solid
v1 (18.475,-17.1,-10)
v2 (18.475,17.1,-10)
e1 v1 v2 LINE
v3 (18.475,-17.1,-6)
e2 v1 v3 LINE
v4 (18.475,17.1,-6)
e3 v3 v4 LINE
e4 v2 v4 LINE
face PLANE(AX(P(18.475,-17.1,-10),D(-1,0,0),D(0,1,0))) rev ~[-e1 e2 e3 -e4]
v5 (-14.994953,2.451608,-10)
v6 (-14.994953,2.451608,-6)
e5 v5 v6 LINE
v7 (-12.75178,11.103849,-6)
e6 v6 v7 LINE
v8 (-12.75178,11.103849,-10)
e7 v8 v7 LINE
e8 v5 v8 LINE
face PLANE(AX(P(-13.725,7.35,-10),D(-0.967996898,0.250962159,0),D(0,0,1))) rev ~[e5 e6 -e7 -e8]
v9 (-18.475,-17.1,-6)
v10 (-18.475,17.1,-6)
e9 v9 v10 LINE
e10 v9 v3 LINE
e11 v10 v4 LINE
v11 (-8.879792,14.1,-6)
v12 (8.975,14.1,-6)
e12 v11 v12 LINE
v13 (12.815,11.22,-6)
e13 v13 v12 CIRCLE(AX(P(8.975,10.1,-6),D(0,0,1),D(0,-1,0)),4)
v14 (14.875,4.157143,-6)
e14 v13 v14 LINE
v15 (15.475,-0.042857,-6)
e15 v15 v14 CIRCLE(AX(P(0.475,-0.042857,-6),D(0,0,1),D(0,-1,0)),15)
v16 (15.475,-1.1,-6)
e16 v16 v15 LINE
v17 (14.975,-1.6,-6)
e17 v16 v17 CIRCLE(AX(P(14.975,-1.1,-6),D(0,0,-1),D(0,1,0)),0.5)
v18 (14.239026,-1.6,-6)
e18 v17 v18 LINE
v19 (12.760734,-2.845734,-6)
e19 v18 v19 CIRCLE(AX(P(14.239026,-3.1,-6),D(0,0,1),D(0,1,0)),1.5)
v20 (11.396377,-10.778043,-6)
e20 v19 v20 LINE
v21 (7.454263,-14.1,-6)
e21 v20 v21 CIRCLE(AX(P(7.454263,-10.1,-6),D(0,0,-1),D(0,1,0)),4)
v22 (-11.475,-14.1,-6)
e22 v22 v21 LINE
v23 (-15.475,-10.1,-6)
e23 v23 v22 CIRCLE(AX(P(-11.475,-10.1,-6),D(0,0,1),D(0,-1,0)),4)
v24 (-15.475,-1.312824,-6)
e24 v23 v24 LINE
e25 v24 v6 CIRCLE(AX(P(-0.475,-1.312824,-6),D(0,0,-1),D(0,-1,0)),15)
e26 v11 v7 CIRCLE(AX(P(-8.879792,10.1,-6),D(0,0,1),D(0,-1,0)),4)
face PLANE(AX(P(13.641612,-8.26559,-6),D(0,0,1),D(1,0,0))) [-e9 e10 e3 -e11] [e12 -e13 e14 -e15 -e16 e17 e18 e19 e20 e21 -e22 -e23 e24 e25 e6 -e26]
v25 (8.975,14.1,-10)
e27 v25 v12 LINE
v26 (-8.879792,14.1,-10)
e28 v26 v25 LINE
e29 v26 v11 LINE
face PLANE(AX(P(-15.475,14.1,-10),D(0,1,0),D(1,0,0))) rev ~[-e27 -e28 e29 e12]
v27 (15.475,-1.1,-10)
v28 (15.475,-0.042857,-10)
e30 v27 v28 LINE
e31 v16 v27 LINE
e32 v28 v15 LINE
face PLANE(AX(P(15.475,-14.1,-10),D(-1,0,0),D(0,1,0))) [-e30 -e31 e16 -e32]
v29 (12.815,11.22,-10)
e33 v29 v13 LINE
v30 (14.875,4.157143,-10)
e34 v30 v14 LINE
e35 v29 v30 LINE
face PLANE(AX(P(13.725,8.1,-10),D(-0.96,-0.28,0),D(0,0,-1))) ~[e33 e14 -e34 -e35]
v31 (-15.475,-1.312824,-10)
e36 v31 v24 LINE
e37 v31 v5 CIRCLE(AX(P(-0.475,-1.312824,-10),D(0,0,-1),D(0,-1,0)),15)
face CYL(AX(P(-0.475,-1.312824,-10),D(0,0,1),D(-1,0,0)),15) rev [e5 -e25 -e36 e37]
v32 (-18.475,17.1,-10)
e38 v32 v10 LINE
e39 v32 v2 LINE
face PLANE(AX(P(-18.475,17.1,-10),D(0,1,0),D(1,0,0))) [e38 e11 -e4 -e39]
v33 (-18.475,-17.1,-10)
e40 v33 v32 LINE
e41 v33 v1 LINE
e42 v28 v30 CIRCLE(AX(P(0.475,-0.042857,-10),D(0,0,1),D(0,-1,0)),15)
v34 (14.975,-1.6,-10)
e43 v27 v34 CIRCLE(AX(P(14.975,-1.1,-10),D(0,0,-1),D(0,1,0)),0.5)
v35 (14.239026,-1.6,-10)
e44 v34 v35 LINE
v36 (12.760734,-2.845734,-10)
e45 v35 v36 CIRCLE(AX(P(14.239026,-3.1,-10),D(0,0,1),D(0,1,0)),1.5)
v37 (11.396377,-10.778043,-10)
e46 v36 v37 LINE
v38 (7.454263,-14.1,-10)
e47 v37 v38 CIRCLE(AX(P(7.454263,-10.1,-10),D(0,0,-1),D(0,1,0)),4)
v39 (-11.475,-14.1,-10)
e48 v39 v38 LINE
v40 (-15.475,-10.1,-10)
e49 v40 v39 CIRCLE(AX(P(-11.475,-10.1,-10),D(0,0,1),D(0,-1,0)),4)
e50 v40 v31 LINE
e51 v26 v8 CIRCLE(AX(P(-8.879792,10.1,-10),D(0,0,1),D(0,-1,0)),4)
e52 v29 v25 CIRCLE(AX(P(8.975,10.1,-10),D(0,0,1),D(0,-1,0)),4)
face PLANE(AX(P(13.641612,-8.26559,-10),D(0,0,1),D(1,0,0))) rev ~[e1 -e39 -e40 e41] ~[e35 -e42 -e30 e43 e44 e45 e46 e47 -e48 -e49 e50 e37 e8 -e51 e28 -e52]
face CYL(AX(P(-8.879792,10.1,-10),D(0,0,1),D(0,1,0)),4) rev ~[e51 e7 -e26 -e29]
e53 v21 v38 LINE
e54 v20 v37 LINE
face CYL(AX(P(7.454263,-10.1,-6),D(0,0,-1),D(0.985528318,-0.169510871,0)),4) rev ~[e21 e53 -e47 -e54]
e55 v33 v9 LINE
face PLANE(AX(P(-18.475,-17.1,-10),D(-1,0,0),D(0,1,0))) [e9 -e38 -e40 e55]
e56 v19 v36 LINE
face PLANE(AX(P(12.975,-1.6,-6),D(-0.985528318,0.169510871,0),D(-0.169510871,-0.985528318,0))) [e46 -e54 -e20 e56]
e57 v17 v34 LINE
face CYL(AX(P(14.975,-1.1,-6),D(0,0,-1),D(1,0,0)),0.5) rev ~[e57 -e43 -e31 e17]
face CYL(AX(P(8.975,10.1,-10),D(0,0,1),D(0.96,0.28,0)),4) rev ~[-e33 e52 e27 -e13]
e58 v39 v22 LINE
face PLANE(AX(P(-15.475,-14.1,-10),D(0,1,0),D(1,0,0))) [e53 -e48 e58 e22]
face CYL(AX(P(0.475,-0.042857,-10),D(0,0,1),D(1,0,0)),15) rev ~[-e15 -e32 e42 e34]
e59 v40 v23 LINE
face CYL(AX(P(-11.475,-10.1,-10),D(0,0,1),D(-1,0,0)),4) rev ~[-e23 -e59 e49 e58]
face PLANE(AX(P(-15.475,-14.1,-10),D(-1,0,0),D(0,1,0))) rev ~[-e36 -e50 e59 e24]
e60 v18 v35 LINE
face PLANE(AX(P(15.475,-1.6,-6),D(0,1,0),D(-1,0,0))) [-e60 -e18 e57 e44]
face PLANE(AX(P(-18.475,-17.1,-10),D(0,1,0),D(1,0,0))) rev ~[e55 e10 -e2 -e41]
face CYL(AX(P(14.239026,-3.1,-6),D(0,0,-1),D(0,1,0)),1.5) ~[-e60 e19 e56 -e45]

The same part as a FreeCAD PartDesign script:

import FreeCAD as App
import Part
import Sketcher
from FreeCAD import Vector


def edges_at(feature, points):
    """Names of the edges that pass closest to the given points."""
    edges = feature.Shape.Edges
    near = lambda p: min(range(len(edges)), key=lambda i: edges[i].distToShape(Part.Vertex(*p))[0])
    return sorted({f"Edge{near(p) + 1}" for p in points})

doc = App.newDocument("Part")
params = doc.addObject("Spreadsheet::Sheet", "Params")
for row, (alias, value) in enumerate([
    ("sketch1_height", "34.2 mm"),
    ("sketch1_height2", "28.2 mm"),
    ("sketch1_width", "36.95 mm"),
    ("pad1_length", "4 mm"),
    ("chamfer_size", "13.5 mm"),
    ("chamfer_size2", "3.5 mm"),
    ("fillet_radius", "4 mm"),
    ("chamfer2_size", "3.5 mm"),
    ("chamfer2_size2", "12 mm"),
    ("sketch2_width", "2.5 mm"),
    ("sketch2_height", "12.5 mm"),
    ("sketch2_width2", "4.65 mm"),
    ("pad2_length", "4 mm"),
    ("fillet2_radius", "1.5 mm"),
    ("fillet3_radius", "4 mm"),
    ("fillet4_radius", "15 mm"),
    ("fillet5_radius", "0.5 mm"),
], start=1):
    params.set(f"A{row}", alias)
    params.set(f"B{row}", "=" + value)
    params.setAlias(f"B{row}", alias)

body = doc.addObject("PartDesign::Body", "Body")

# Sketch on XY plane
sketch1 = body.newObject("Sketcher::SketchObject", "Sketch")
sketch1.AttachmentSupport = (doc.getObject("XY_Plane"), [""])
sketch1.MapMode = "FlatFace"
sketch1.addGeometry([
    Part.LineSegment(Vector(-18.475, 17.1, 0), Vector(-18.475, -17.1, 0)),  # 0
    Part.LineSegment(Vector(-18.475, -17.1, 0), Vector(18.475, -17.1, 0)),  # 1
    Part.LineSegment(Vector(18.475, -17.1, 0), Vector(18.475, 17.1, 0)),  # 2
    Part.LineSegment(Vector(18.475, 17.1, 0), Vector(-18.475, 17.1, 0)),  # 3
    Part.LineSegment(Vector(15.475, -14.1, 0), Vector(-15.475, -14.1, 0)),  # 4
    Part.LineSegment(Vector(-15.475, -14.1, 0), Vector(-15.475, 14.1, 0)),  # 5
    Part.LineSegment(Vector(-15.475, 14.1, 0), Vector(15.475, 14.1, 0)),  # 6
    Part.LineSegment(Vector(15.475, 14.1, 0), Vector(15.475, -14.1, 0)),  # 7
], False)
sketch1.addConstraint([
    Sketcher.Constraint("Coincident", 0, 2, 1, 1),
    Sketcher.Constraint("Coincident", 1, 2, 2, 1),
    Sketcher.Constraint("Coincident", 2, 2, 3, 1),
    Sketcher.Constraint("Coincident", 3, 2, 0, 1),
    Sketcher.Constraint("Coincident", 4, 2, 5, 1),
    Sketcher.Constraint("Coincident", 5, 2, 6, 1),
    Sketcher.Constraint("Coincident", 6, 2, 7, 1),
    Sketcher.Constraint("Coincident", 7, 2, 4, 1),
    Sketcher.Constraint("Vertical", 0),
    Sketcher.Constraint("Horizontal", 1),
    Sketcher.Constraint("Vertical", 2),
    Sketcher.Constraint("Horizontal", 3),
    Sketcher.Constraint("Horizontal", 4),
    Sketcher.Constraint("Vertical", 5),
    Sketcher.Constraint("Horizontal", 6),
    Sketcher.Constraint("Vertical", 7),
    Sketcher.Constraint("Symmetric", 0, 2, 2, 2, -1, 1),
    Sketcher.Constraint("Symmetric", 4, 2, 6, 2, -1, 1),
    Sketcher.Constraint("DistanceY", 0, 2, 0, 1, 34.2),
    Sketcher.Constraint("DistanceY", 5, 1, 5, 2, 28.2),
    Sketcher.Constraint("DistanceX", 0, 2, 4, 2, 3.0),
    Sketcher.Constraint("DistanceX", 1, 1, 1, 2, 36.95),
])
sketch1.setExpression("Constraints[18]", "Params.sketch1_height")
sketch1.setExpression("Constraints[19]", "Params.sketch1_height2")
sketch1.setExpression("Constraints[21]", "Params.sketch1_width")
pad1 = body.newObject("PartDesign::Pad", "Pad")
pad1.Profile = sketch1
pad1.setExpression("Length", "Params.pad1_length")
doc.recompute()

chamfer = body.newObject("PartDesign::Chamfer", "Chamfer")
chamfer.Base = (pad1, edges_at(pad1, [(-15.475, 14.1, 2)]))
chamfer.ChamferType = "Two distances"
chamfer.setExpression("Size", "Params.chamfer_size")
chamfer.setExpression("Size2", "Params.chamfer_size2")
doc.recompute()

fillet = body.newObject("PartDesign::Fillet", "Fillet")
fillet.Base = (chamfer, edges_at(chamfer, [(-15.475, -14.1, 2)]))
fillet.setExpression("Radius", "Params.fillet_radius")
doc.recompute()

chamfer2 = body.newObject("PartDesign::Chamfer", "Chamfer001")
chamfer2.Base = (fillet, edges_at(fillet, [(15.475, 14.1, 2)]))
chamfer2.ChamferType = "Two distances"
chamfer2.setExpression("Size", "Params.chamfer2_size")
chamfer2.setExpression("Size2", "Params.chamfer2_size2")

# Sketch on XY plane
sketch2 = body.newObject("Sketcher::SketchObject", "Sketch001")
sketch2.AttachmentSupport = (doc.getObject("XY_Plane"), [""])
sketch2.MapMode = "FlatFace"
sketch2.AttachmentOffset = App.Placement(Vector(0, 0, 4), App.Rotation())
sketch2.addGeometry([
    Part.LineSegment(Vector(10.825, -14.1, 0), Vector(15.475, -14.1, 0)),
    Part.LineSegment(Vector(15.475, -14.1, 0), Vector(15.475, -1.6, 0)),
    Part.LineSegment(Vector(15.475, -1.6, 0), Vector(12.975, -1.6, 0)),
    Part.LineSegment(Vector(12.975, -1.6, 0), Vector(10.825, -14.1, 0)),
], False)
sketch2.addConstraint([
    Sketcher.Constraint("Coincident", 0, 2, 1, 1),
    Sketcher.Constraint("Coincident", 1, 2, 2, 1),
    Sketcher.Constraint("Coincident", 2, 2, 3, 1),
    Sketcher.Constraint("Coincident", 3, 2, 0, 1),
    Sketcher.Constraint("Horizontal", 0),
    Sketcher.Constraint("Vertical", 1),
    Sketcher.Constraint("Horizontal", 2),
    Sketcher.Constraint("DistanceX", 2, 2, 2, 1, 2.5),
    Sketcher.Constraint("DistanceY", 1, 1, 1, 2, 12.5),
    Sketcher.Constraint("DistanceX", 0, 1, 0, 2, 4.65),
    Sketcher.Constraint("DistanceY", 0, 2, -1, 1, 14.1),
    Sketcher.Constraint("DistanceX", -1, 1, 0, 2, 15.475),
])
sketch2.setExpression("Constraints[7]", "Params.sketch2_width")
sketch2.setExpression("Constraints[8]", "Params.sketch2_height")
sketch2.setExpression("Constraints[9]", "Params.sketch2_width2")
pad2 = body.newObject("PartDesign::Pad", "Pad001")
pad2.Profile = sketch2
pad2.setExpression("Length", "Params.pad2_length")
pad2.Reversed = True
doc.recompute()

fillet2 = body.newObject("PartDesign::Fillet", "Fillet001")
fillet2.Base = (pad2, edges_at(pad2, [(12.975, -1.6, 2)]))
fillet2.setExpression("Radius", "Params.fillet2_radius")
doc.recompute()

fillet3 = body.newObject("PartDesign::Fillet", "Fillet002")
fillet3.Base = (fillet2, edges_at(fillet2, [(-11.975, 14.1, 2), (11.975, 14.1, 2), (10.825, -14.1, 2)]))
fillet3.setExpression("Radius", "Params.fillet3_radius")
doc.recompute()

fillet4 = body.newObject("PartDesign::Fillet", "Fillet003")
fillet4.Base = (fillet3, edges_at(fillet3, [(-15.475, 0.6, 2), (15.475, 2.1, 2)]))
fillet4.setExpression("Radius", "Params.fillet4_radius")
doc.recompute()

fillet5 = body.newObject("PartDesign::Fillet", "Fillet004")
fillet5.Base = (fillet4, edges_at(fillet4, [(15.475, -1.6, 2)]))
fillet5.setExpression("Radius", "Params.fillet5_radius")
body2 = doc.addObject("PartDesign::Body", "Body001")
doc.recompute()

body.Placement = App.Placement(Vector(0, 0, -10), App.Rotation(Vector(0, 0, 1), 0))
boolean = body2.newObject("PartDesign::Boolean", "Boolean")
boolean.Type = "Fuse"
boolean.addObjects([body])

doc.recompute()
